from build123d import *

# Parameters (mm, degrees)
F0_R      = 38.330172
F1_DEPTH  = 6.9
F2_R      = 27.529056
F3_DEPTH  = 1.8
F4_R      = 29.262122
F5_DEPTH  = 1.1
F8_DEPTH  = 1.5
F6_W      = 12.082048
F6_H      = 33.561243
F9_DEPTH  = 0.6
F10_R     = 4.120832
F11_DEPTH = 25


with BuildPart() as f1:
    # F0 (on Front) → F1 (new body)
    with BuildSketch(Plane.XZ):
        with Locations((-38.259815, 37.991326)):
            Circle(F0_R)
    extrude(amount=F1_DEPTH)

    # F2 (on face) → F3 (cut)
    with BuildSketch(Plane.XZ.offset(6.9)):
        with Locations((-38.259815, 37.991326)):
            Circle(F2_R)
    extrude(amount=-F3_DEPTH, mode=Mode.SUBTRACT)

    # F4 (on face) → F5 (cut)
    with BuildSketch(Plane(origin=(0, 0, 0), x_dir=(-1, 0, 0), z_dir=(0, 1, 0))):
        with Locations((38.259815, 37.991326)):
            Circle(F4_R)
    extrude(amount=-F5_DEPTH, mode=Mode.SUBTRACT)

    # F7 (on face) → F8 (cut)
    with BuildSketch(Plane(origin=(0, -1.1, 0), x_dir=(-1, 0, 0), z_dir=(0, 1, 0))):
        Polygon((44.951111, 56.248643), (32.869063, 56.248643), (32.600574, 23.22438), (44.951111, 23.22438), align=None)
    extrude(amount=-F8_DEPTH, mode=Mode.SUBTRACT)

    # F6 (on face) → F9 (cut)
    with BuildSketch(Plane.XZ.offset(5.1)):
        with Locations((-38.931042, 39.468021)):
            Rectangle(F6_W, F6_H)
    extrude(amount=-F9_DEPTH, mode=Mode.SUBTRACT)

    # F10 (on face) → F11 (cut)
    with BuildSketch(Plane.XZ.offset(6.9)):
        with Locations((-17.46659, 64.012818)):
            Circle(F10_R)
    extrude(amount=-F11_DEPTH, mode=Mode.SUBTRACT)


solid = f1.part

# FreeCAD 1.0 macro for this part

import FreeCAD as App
import Part
import Sketcher

V = App.Vector
Q = App.Units.Quantity


def add_polygon(sketch, points):
    """Adds a closed chain of lines whose ends are joined by coincident constraints."""
    first, n = sketch.GeometryCount, len(points)
    for a, b in zip(points, points[1:] + points[:1]):
        sketch.addGeometry(Part.LineSegment(App.Vector(*a, 0), App.Vector(*b, 0)), False)
    for i in range(n):
        sketch.addConstraint(Sketcher.Constraint("Coincident", first + i, 2, first + (i + 1) % n, 1))

doc = App.newDocument("Part")
body = doc.addObject("PartDesign::Body", "Body")

# Sketch on XZ plane
sketch1 = body.newObject("Sketcher::SketchObject", "Sketch")
sketch1.AttachmentSupport = (doc.getObject("XZ_Plane"), [""])
sketch1.MapMode = "FlatFace"
sketch1.addGeometry(Part.Circle(V(-38, 38, 0), V(0, 0, 1), 38), False)
sketch1.addConstraint(Sketcher.Constraint("Diameter", 0, Q("76.660344 mm")))
sketch1.addConstraint(Sketcher.Constraint("DistanceX", 0, 3, -1, 1, Q("38.259815 mm")))
sketch1.addConstraint(Sketcher.Constraint("DistanceY", -1, 1, 0, 3, Q("37.991326 mm")))
pad1 = body.newObject("PartDesign::Pad", "Pad")
pad1.Profile = sketch1
pad1.Length = 6.9

# Sketch on XZ plane
sketch2 = body.newObject("Sketcher::SketchObject", "Sketch001")
sketch2.AttachmentSupport = (doc.getObject("XZ_Plane"), [""])
sketch2.MapMode = "FlatFace"
sketch2.AttachmentOffset = App.Placement(V(0, 0, 6.9), App.Rotation())
sketch2.addGeometry(Part.Circle(V(-38, 38, 0), V(0, 0, 1), 28), False)
sketch2.addConstraint(Sketcher.Constraint("Diameter", 0, Q("55.058112 mm")))
sketch2.addConstraint(Sketcher.Constraint("DistanceX", 0, 3, -1, 1, Q("38.259815 mm")))
sketch2.addConstraint(Sketcher.Constraint("DistanceY", -1, 1, 0, 3, Q("37.991326 mm")))
pocket1 = body.newObject("PartDesign::Pocket", "Pocket")
pocket1.Profile = sketch2
pocket1.Length = 1.8

# Sketch on XZ plane
sketch3 = body.newObject("Sketcher::SketchObject", "Sketch002")
sketch3.AttachmentSupport = (doc.getObject("XZ_Plane"), [""])
sketch3.MapMode = "FlatFace"
sketch3.addGeometry(Part.Circle(V(-38, 38, 0), V(0, 0, 1), 29), False)
sketch3.addConstraint(Sketcher.Constraint("Diameter", 0, Q("58.524244 mm")))
sketch3.addConstraint(Sketcher.Constraint("DistanceX", 0, 3, -1, 1, Q("38.259815 mm")))
sketch3.addConstraint(Sketcher.Constraint("DistanceY", -1, 1, 0, 3, Q("37.991326 mm")))
pocket2 = body.newObject("PartDesign::Pocket", "Pocket001")
pocket2.Profile = sketch3
pocket2.Length = 1.1
pocket2.Reversed = True

# Sketch on XZ plane
sketch4 = body.newObject("Sketcher::SketchObject", "Sketch003")
sketch4.AttachmentSupport = (doc.getObject("XZ_Plane"), [""])
sketch4.MapMode = "FlatFace"
sketch4.AttachmentOffset = App.Placement(V(0, 0, 1.1), App.Rotation())
add_polygon(sketch4, [(-45, 56), (-33, 56), (-33, 23), (-45, 23)])  # lines 0-3
sketch4.addConstraint(Sketcher.Constraint("Horizontal", 0))
sketch4.addConstraint(Sketcher.Constraint("Horizontal", 2))
sketch4.addConstraint(Sketcher.Constraint("Vertical", 3))
sketch4.addConstraint(Sketcher.Constraint("DistanceX", 0, 1, 0, 2, Q("12.082048 mm")))
sketch4.addConstraint(Sketcher.Constraint("DistanceX", 2, 2, 2, 1, Q("12.350537 mm")))
sketch4.addConstraint(Sketcher.Constraint("DistanceY", 3, 1, 3, 2, Q("33.024263 mm")))
sketch4.addConstraint(Sketcher.Constraint("DistanceY", -1, 1, 1, 2, Q("23.22438 mm")))
sketch4.addConstraint(Sketcher.Constraint("DistanceX", 2, 2, -1, 1, Q("44.951111 mm")))
pocket3 = body.newObject("PartDesign::Pocket", "Pocket002")
pocket3.Profile = sketch4
pocket3.Length = 1.5
pocket3.Reversed = True

# Sketch on XZ plane
sketch5 = body.newObject("Sketcher::SketchObject", "Sketch004")
sketch5.AttachmentSupport = (doc.getObject("XZ_Plane"), [""])
sketch5.MapMode = "FlatFace"
sketch5.AttachmentOffset = App.Placement(V(0, 0, 5.1), App.Rotation())
add_polygon(sketch5, [(-45, 56), (-45, 23), (-33, 23), (-33, 56)])  # lines 0-3
sketch5.addConstraint(Sketcher.Constraint("Vertical", 0))
sketch5.addConstraint(Sketcher.Constraint("Horizontal", 1))
sketch5.addConstraint(Sketcher.Constraint("Vertical", 2))
sketch5.addConstraint(Sketcher.Constraint("Horizontal", 3))
sketch5.addConstraint(Sketcher.Constraint("DistanceY", -1, 1, 0, 2, Q("22.6874 mm")))
sketch5.addConstraint(Sketcher.Constraint("DistanceX", 1, 1, 1, 2, Q("12.082048 mm")))
sketch5.addConstraint(Sketcher.Constraint("DistanceY", 0, 2, 0, 1, Q("33.561243 mm")))
sketch5.addConstraint(Sketcher.Constraint("DistanceX", 0, 2, -1, 1, Q("44.972066 mm")))
pocket4 = body.newObject("PartDesign::Pocket", "Pocket003")
pocket4.Profile = sketch5
pocket4.Length = 0.6

# Sketch on XZ plane
sketch6 = body.newObject("Sketcher::SketchObject", "Sketch005")
sketch6.AttachmentSupport = (doc.getObject("XZ_Plane"), [""])
sketch6.MapMode = "FlatFace"
sketch6.AttachmentOffset = App.Placement(V(0, 0, 6.9), App.Rotation())
sketch6.addGeometry(Part.Circle(V(-17.5, 64, 0), V(0, 0, 1), 4.1), False)
sketch6.addConstraint(Sketcher.Constraint("Diameter", 0, Q("8.241664 mm")))
sketch6.addConstraint(Sketcher.Constraint("DistanceX", 0, 3, -1, 1, Q("17.46659 mm")))
sketch6.addConstraint(Sketcher.Constraint("DistanceY", -1, 1, 0, 3, Q("64.012818 mm")))
pocket5 = body.newObject("PartDesign::Pocket", "Pocket004")
pocket5.Profile = sketch6
pocket5.Length = 25

doc.recompute()
